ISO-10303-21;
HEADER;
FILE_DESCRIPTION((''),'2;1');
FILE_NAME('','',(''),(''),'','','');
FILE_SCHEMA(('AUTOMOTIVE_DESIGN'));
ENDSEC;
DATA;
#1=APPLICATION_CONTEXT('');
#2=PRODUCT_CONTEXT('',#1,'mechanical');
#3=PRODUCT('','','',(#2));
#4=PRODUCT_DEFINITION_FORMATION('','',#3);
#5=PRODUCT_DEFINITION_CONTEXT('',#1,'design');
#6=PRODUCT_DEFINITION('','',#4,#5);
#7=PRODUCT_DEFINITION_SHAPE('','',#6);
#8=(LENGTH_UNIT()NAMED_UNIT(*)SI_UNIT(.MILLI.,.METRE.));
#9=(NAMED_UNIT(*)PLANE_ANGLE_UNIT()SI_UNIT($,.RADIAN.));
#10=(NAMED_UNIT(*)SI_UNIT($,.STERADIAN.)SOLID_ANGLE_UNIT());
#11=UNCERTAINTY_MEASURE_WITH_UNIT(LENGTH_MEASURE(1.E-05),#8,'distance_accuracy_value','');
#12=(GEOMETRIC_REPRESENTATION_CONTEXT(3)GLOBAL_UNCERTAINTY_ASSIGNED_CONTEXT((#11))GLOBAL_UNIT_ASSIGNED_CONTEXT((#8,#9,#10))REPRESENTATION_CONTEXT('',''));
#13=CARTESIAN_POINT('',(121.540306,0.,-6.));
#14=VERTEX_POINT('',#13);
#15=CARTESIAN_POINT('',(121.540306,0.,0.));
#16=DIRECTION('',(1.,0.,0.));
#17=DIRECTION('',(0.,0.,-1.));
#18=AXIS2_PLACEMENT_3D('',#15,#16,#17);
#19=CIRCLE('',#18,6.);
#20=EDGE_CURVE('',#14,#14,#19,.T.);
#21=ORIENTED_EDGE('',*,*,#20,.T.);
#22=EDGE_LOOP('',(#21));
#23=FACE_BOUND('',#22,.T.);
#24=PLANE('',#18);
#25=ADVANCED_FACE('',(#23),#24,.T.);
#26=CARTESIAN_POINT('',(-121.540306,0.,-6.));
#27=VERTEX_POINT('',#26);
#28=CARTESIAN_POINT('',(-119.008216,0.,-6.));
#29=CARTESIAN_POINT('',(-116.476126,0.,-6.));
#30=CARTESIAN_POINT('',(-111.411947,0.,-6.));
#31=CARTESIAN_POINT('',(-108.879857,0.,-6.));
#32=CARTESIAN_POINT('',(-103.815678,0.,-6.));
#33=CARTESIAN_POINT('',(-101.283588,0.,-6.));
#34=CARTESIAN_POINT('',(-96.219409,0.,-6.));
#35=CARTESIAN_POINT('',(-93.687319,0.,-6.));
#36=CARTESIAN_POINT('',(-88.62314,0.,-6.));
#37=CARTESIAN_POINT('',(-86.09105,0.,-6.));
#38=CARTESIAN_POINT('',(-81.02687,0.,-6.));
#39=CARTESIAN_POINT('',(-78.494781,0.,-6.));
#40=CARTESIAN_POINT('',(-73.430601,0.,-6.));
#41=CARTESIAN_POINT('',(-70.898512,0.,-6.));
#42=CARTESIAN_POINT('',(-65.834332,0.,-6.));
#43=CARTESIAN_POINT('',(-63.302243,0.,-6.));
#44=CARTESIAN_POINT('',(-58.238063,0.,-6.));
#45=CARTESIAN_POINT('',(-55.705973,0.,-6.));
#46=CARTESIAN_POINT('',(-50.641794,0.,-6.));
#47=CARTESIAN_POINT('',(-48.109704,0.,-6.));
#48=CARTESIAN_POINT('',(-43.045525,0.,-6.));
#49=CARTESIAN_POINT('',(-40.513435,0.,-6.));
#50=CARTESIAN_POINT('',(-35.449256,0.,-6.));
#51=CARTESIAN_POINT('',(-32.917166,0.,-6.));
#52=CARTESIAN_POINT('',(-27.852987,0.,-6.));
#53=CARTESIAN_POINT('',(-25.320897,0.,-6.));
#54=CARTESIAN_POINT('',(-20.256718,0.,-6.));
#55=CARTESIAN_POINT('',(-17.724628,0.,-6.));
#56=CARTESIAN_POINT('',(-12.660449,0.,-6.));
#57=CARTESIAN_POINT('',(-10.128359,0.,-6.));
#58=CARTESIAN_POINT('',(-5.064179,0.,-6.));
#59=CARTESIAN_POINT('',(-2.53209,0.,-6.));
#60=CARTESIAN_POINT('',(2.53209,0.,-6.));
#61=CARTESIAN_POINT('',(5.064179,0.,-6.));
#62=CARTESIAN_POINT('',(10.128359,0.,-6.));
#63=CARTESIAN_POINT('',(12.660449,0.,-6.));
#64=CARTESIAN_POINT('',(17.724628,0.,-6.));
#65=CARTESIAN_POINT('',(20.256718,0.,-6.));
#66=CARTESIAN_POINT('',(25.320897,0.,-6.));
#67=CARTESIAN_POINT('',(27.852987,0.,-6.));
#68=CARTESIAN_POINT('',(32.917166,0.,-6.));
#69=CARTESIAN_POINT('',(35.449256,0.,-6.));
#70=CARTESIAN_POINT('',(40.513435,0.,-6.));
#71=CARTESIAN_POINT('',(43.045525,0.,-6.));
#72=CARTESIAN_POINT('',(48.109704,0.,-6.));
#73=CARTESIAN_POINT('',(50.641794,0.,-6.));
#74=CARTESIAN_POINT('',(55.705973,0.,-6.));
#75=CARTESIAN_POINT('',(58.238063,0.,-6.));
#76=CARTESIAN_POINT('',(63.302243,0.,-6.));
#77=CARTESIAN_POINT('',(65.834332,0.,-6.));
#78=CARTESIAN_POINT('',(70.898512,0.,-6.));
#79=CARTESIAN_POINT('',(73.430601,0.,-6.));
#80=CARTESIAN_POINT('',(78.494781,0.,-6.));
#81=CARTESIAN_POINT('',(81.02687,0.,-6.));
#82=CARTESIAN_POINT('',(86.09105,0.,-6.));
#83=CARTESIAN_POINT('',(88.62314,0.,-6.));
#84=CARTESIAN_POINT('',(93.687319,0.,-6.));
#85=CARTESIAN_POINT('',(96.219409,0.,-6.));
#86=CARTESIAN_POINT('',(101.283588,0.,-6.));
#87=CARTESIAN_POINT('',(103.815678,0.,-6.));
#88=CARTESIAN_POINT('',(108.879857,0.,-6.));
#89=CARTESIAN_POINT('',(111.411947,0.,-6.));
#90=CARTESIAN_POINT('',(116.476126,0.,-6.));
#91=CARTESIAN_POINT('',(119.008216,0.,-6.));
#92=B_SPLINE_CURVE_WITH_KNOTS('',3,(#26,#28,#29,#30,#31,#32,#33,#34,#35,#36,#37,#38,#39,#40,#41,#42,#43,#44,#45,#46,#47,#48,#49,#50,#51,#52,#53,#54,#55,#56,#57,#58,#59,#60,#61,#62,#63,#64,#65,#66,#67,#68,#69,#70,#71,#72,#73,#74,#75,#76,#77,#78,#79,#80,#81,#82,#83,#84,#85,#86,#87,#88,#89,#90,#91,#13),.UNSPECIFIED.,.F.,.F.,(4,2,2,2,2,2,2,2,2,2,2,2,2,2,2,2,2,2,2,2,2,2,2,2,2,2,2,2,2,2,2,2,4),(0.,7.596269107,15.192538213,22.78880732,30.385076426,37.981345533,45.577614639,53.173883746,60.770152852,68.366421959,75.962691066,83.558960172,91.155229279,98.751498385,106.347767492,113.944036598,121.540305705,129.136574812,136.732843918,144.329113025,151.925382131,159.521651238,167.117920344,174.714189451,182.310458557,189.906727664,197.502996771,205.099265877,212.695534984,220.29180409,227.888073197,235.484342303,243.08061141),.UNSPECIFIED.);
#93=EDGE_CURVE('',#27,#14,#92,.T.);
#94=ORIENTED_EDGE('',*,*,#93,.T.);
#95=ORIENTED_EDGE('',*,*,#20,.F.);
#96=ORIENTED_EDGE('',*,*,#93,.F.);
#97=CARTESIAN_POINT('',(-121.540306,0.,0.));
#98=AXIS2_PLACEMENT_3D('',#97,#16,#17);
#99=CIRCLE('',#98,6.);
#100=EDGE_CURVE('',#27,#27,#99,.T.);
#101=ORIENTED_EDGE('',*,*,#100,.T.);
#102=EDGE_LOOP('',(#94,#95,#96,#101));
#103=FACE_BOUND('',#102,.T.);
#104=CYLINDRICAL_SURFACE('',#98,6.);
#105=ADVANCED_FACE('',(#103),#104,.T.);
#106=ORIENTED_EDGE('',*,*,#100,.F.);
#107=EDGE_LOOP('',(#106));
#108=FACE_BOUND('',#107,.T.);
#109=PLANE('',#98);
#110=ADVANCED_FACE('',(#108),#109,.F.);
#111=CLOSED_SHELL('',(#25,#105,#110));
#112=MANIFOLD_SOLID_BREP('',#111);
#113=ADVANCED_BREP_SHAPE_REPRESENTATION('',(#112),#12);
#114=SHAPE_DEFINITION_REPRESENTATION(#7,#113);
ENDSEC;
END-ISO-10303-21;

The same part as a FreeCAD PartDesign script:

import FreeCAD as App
import Part
import Sketcher
from FreeCAD import Vector
Q = App.Units.Quantity

doc = App.newDocument("Part")
body = doc.addObject("PartDesign::Body", "Body")

# Sketch on YZ plane
sketch1 = body.newObject("Sketcher::SketchObject", "Sketch")
sketch1.AttachmentSupport = (doc.getObject("YZ_Plane"), [""])
sketch1.MapMode = "FlatFace"
sketch1.addGeometry(Part.Circle(Vector(0, 0, 0), Vector(0, 0, 1), 6), False)
sketch1.addConstraint(Sketcher.Constraint("Coincident", 0, 3, -1, 1))
sketch1.addConstraint(Sketcher.Constraint("Diameter", 0, Q("12 mm")))
pad1 = body.newObject("PartDesign::Pad", "Pad")
pad1.Profile = sketch1
pad1.Length = 243.080611
pad1.Midplane = True

doc.recompute()
